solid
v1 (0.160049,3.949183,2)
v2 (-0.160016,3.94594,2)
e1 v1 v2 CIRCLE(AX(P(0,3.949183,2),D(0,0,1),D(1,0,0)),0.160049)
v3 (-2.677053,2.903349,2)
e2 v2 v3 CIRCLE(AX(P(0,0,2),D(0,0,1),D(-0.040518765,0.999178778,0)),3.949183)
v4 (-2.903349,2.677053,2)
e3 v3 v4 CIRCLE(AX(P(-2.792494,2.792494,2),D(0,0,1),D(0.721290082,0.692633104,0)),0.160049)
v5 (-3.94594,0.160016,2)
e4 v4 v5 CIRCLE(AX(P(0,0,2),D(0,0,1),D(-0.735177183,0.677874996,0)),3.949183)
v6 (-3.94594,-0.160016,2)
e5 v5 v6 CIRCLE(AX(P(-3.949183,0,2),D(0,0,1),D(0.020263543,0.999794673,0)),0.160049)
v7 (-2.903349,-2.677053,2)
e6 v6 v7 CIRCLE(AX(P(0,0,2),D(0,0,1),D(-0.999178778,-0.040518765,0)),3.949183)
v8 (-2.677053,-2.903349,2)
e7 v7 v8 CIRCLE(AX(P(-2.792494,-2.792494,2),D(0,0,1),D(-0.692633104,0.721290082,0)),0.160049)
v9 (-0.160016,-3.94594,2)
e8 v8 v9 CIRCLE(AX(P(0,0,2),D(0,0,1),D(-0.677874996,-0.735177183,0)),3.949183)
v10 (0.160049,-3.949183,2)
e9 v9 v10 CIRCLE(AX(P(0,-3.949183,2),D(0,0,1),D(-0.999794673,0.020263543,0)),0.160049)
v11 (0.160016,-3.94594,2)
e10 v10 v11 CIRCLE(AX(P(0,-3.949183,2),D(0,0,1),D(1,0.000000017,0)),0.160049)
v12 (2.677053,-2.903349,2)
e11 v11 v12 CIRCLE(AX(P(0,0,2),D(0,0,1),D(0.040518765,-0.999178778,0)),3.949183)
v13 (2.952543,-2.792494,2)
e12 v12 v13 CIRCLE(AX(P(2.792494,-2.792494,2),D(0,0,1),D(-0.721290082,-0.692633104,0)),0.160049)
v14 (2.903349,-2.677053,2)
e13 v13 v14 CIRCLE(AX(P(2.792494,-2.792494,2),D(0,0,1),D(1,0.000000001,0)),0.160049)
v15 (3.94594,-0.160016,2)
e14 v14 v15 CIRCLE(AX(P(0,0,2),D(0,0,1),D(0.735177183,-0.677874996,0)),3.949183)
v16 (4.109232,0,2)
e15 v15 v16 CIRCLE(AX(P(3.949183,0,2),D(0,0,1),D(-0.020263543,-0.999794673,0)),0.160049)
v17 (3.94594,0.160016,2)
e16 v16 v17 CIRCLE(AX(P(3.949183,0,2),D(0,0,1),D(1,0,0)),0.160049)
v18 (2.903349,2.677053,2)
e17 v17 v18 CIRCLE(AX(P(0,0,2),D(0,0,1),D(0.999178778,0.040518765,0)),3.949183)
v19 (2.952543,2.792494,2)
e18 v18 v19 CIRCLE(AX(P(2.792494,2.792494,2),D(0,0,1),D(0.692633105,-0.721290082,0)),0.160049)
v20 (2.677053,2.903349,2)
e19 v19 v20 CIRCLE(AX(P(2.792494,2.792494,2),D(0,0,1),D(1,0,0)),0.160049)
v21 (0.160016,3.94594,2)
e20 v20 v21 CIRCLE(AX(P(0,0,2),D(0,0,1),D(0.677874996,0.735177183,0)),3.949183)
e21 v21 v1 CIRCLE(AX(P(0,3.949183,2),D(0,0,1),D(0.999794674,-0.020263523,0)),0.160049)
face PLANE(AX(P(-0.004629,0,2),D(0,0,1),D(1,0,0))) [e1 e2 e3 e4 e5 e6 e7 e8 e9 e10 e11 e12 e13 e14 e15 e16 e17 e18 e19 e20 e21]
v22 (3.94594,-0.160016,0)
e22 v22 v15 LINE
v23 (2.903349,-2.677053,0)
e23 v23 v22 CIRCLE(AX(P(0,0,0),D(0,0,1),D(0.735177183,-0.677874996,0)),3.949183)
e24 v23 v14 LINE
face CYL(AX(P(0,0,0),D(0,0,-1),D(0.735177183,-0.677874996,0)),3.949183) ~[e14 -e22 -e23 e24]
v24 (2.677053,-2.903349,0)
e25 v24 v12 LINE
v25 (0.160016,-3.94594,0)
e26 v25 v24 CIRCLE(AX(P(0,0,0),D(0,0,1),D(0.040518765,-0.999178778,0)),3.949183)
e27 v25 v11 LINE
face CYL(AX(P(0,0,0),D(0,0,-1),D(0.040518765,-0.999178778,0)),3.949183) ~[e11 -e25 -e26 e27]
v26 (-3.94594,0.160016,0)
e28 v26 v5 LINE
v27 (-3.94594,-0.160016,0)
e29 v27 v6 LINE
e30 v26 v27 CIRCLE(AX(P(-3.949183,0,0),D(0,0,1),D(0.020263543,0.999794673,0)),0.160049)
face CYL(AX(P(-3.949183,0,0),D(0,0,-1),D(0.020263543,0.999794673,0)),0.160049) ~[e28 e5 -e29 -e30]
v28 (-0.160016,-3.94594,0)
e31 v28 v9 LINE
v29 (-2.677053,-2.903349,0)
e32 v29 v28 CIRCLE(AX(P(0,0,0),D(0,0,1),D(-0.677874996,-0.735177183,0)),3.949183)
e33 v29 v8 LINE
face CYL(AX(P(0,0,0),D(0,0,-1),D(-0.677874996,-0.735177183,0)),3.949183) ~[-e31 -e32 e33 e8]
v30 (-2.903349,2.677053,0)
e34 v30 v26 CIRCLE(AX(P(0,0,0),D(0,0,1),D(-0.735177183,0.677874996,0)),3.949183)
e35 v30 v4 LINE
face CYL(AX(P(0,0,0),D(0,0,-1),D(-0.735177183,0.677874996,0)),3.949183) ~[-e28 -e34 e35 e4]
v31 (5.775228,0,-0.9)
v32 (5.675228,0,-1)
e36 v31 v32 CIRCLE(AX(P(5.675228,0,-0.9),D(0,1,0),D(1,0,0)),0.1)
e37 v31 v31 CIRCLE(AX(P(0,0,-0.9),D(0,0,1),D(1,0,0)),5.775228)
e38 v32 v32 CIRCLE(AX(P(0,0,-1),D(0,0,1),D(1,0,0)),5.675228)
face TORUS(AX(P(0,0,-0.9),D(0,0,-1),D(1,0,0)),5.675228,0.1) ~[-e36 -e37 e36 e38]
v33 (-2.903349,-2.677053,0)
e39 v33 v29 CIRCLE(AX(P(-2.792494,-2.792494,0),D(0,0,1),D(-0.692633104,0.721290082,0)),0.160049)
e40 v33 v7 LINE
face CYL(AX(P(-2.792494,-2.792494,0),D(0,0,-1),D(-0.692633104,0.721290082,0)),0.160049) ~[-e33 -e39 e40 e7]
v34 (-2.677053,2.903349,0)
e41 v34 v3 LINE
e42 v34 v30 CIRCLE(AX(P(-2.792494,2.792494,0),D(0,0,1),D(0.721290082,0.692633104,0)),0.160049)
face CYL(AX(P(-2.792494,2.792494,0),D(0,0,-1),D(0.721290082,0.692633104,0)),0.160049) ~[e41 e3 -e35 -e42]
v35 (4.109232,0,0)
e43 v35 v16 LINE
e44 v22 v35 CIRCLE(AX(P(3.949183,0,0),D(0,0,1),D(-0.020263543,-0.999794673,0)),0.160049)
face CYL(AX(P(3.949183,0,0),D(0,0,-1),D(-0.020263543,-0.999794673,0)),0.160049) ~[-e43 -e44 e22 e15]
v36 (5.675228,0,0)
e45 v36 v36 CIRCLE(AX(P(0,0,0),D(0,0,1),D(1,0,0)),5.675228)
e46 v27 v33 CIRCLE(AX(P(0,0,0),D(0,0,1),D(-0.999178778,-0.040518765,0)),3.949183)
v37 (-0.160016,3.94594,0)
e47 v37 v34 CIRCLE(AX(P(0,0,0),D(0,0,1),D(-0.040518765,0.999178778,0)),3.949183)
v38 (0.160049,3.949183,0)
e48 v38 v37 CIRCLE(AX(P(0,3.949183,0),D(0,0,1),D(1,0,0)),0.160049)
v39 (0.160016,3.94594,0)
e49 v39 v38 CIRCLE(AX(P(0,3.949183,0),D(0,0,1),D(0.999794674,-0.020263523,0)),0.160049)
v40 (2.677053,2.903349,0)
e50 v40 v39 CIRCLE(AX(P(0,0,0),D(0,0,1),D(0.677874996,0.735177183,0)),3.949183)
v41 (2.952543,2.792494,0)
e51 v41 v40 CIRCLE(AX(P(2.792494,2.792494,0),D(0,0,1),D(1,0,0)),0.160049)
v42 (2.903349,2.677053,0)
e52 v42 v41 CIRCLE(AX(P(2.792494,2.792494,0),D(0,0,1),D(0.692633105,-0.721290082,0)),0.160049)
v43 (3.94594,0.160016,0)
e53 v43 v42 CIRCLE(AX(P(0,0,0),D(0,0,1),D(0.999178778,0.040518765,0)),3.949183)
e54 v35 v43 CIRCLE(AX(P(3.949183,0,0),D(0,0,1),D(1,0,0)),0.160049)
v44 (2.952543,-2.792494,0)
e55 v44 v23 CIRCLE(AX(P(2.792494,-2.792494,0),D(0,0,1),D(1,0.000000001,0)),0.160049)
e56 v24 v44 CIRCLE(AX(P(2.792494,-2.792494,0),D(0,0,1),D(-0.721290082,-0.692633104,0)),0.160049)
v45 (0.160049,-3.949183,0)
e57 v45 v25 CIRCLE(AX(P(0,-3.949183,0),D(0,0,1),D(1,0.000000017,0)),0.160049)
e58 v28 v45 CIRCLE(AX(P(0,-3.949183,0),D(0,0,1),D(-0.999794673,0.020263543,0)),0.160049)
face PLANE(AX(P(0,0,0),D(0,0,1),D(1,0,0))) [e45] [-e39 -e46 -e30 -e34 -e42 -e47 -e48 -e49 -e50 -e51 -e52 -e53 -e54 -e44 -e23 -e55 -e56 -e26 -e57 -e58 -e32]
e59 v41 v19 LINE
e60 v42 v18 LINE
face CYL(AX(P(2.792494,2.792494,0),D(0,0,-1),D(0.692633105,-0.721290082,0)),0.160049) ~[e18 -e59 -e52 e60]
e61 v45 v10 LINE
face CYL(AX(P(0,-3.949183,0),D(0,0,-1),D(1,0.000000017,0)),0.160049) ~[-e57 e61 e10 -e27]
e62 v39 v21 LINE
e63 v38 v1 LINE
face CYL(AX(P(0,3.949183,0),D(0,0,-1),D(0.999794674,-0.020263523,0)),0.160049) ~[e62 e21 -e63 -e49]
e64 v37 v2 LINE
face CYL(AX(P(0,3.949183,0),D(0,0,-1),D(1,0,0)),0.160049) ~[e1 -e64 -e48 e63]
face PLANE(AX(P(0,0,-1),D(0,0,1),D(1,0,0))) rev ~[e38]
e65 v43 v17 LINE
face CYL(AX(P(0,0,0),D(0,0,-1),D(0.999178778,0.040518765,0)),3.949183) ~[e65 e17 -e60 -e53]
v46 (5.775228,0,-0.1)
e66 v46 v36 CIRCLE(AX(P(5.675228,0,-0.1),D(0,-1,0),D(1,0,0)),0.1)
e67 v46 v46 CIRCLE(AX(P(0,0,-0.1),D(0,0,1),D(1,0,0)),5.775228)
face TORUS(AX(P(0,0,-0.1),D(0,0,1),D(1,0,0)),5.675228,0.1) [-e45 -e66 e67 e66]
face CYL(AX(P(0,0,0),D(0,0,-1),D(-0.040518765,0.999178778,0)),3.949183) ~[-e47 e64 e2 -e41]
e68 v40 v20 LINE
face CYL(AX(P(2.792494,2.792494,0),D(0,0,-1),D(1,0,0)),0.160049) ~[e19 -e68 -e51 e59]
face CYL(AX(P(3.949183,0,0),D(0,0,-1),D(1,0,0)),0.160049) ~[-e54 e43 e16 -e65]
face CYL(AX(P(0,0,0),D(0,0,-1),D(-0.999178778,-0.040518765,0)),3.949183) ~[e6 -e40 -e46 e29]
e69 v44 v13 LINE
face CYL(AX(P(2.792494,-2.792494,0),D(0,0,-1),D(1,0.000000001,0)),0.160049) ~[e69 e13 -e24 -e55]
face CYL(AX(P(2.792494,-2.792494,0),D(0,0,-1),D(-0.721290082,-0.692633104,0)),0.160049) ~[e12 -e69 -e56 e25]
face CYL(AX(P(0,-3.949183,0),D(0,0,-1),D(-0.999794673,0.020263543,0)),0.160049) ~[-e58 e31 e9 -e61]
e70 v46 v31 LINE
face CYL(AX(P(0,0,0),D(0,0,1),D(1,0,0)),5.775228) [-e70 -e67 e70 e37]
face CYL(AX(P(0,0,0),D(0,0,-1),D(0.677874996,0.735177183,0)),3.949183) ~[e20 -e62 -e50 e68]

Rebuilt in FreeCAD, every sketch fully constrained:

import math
import FreeCAD as App
import Part
import Sketcher

V = App.Vector
Q = App.Units.Quantity


def edges_at(feature, points):
    """Names of the edges that pass closest to the given points."""
    edges = feature.Shape.Edges
    near = lambda p: min(range(len(edges)), key=lambda i: edges[i].distToShape(Part.Vertex(*p))[0])
    return sorted({f"Edge{near(p) + 1}" for p in points})

doc = App.newDocument("Part")
body = doc.addObject("PartDesign::Body", "Body")

# Sketch on XY plane
sketch1 = body.newObject("Sketcher::SketchObject", "Sketch")
sketch1.AttachmentSupport = (doc.getObject("XY_Plane"), [""])
sketch1.MapMode = "FlatFace"
sketch1.addGeometry(Part.Circle(V(0, 0, 0), V(0, 0, 1), 6), False)
sketch1.addConstraint(Sketcher.Constraint("Coincident", 0, 3, -1, 1))
sketch1.addConstraint(Sketcher.Constraint("Diameter", 0, Q("11.550455 mm")))
pad1 = body.newObject("PartDesign::Pad", "Pad")
pad1.Profile = sketch1
pad1.Length = 1
pad1.Reversed = True

# Sketch on XY plane
sketch2 = body.newObject("Sketcher::SketchObject", "Sketch001")
sketch2.AttachmentSupport = (doc.getObject("XY_Plane"), [""])
sketch2.MapMode = "FlatFace"
sketch2.addGeometry(Part.ArcOfCircle(Part.Circle(V(0, 0, 0), V(0, 0, 1), 3.9492), math.radians(2), math.radians(43)), False)
sketch2.addGeometry(Part.ArcOfCircle(Part.Circle(V(2.7925, 2.7925, 0), V(0, 0, 1), 0.16), math.radians(-46), math.radians(0)), False)
sketch2.addGeometry(Part.ArcOfCircle(Part.Circle(V(2.7925, 2.7925, 0), V(0, 0, 1), 0.16), math.radians(0), math.radians(136)), False)
sketch2.addGeometry(Part.ArcOfCircle(Part.Circle(V(0, 0, 0), V(0, 0, 1), 3.9492), math.radians(47), math.radians(88)), False)
sketch2.addGeometry(Part.ArcOfCircle(Part.Circle(V(0, 3.9492, 0), V(0, 0, 1), 0.16), math.radians(-1.16), math.radians(0)), False)
sketch2.addGeometry(Part.ArcOfCircle(Part.Circle(V(0, 3.9492, 0), V(0, 0, 1), 0.16), math.radians(0), math.radians(181)), False)
sketch2.addGeometry(Part.ArcOfCircle(Part.Circle(V(0, 0, 0), V(0, 0, 1), 3.9492), math.radians(92), math.radians(133)), False)
sketch2.addGeometry(Part.ArcOfCircle(Part.Circle(V(-2.7925, 2.7925, 0), V(0, 0, 1), 0.16), math.radians(44), math.radians(226)), False)
sketch2.addGeometry(Part.ArcOfCircle(Part.Circle(V(0, 0, 0), V(0, 0, 1), 3.9492), math.radians(137), math.radians(178)), False)
sketch2.addGeometry(Part.ArcOfCircle(Part.Circle(V(-3.9492, 0, 0), V(0, 0, 1), 0.16), math.radians(89), math.radians(271)), False)
sketch2.addGeometry(Part.ArcOfCircle(Part.Circle(V(0, 0, 0), V(0, 0, 1), 3.9492), math.radians(-178), math.radians(-137)), False)
sketch2.addGeometry(Part.ArcOfCircle(Part.Circle(V(-2.7925, -2.7925, 0), V(0, 0, 1), 0.16), math.radians(134), math.radians(316)), False)
sketch2.addGeometry(Part.ArcOfCircle(Part.Circle(V(0, 0, 0), V(0, 0, 1), 3.9492), math.radians(-133), math.radians(-92)), False)
sketch2.addGeometry(Part.ArcOfCircle(Part.Circle(V(0, -3.9492, 0), V(0, 0, 1), 0.16), math.radians(179), math.radians(360)), False)
sketch2.addGeometry(Part.ArcOfCircle(Part.Circle(V(0, -3.9492, 0), V(0, 0, 1), 0.16), math.radians(0), math.radians(1.16)), False)
sketch2.addGeometry(Part.ArcOfCircle(Part.Circle(V(0, 0, 0), V(0, 0, 1), 3.9492), math.radians(-88), math.radians(-47)), False)
sketch2.addGeometry(Part.ArcOfCircle(Part.Circle(V(2.7925, -2.7925, 0), V(0, 0, 1), 0.16), math.radians(-136), math.radians(0)), False)
sketch2.addGeometry(Part.ArcOfCircle(Part.Circle(V(2.7925, -2.7925, 0), V(0, 0, 1), 0.16), math.radians(0), math.radians(46)), False)
sketch2.addGeometry(Part.ArcOfCircle(Part.Circle(V(0, 0, 0), V(0, 0, 1), 3.9492), math.radians(-43), math.radians(-2)), False)
sketch2.addGeometry(Part.ArcOfCircle(Part.Circle(V(3.9492, 0, 0), V(0, 0, 1), 0.16), math.radians(-91), math.radians(0)), False)
sketch2.addGeometry(Part.ArcOfCircle(Part.Circle(V(3.9492, 0, 0), V(0, 0, 1), 0.16), math.radians(0), math.radians(91)), False)
sketch2.addConstraint(Sketcher.Constraint("Coincident", 0, 2, 1, 1))
sketch2.addConstraint(Sketcher.Constraint("Tangent", 1, 2, 2, 1))
sketch2.addConstraint(Sketcher.Constraint("Coincident", 2, 2, 3, 1))
sketch2.addConstraint(Sketcher.Constraint("Coincident", 3, 2, 4, 1))
sketch2.addConstraint(Sketcher.Constraint("Tangent", 4, 2, 5, 1))
sketch2.addConstraint(Sketcher.Constraint("Coincident", 5, 2, 6, 1))
sketch2.addConstraint(Sketcher.Constraint("Coincident", 6, 2, 7, 1))
sketch2.addConstraint(Sketcher.Constraint("Coincident", 7, 2, 8, 1))
sketch2.addConstraint(Sketcher.Constraint("Coincident", 8, 2, 9, 1))
sketch2.addConstraint(Sketcher.Constraint("Coincident", 9, 2, 10, 1))
sketch2.addConstraint(Sketcher.Constraint("Coincident", 10, 2, 11, 1))
sketch2.addConstraint(Sketcher.Constraint("Coincident", 11, 2, 12, 1))
sketch2.addConstraint(Sketcher.Constraint("Coincident", 12, 2, 13, 1))
sketch2.addConstraint(Sketcher.Constraint("Tangent", 13, 2, 14, 1))
sketch2.addConstraint(Sketcher.Constraint("Coincident", 14, 2, 15, 1))
sketch2.addConstraint(Sketcher.Constraint("Coincident", 15, 2, 16, 1))
sketch2.addConstraint(Sketcher.Constraint("Tangent", 16, 2, 17, 1))
sketch2.addConstraint(Sketcher.Constraint("Coincident", 17, 2, 18, 1))
sketch2.addConstraint(Sketcher.Constraint("Coincident", 18, 2, 19, 1))
sketch2.addConstraint(Sketcher.Constraint("Tangent", 19, 2, 20, 1))
sketch2.addConstraint(Sketcher.Constraint("Coincident", 20, 2, 0, 1))
sketch2.addConstraint(Sketcher.Constraint("Coincident", 0, 3, -1, 1))
sketch2.addConstraint(Sketcher.Constraint("Coincident", 3, 3, -1, 1))
sketch2.addConstraint(Sketcher.Constraint("Coincident", 6, 3, -1, 1))
sketch2.addConstraint(Sketcher.Constraint("Coincident", 8, 3, -1, 1))
sketch2.addConstraint(Sketcher.Constraint("Coincident", 10, 3, -1, 1))
sketch2.addConstraint(Sketcher.Constraint("Coincident", 12, 3, -1, 1))
sketch2.addConstraint(Sketcher.Constraint("Coincident", 15, 3, -1, 1))
sketch2.addConstraint(Sketcher.Constraint("Coincident", 18, 3, -1, 1))
sketch2.addConstraint(Sketcher.Constraint("Equal", 1, 2))
sketch2.addConstraint(Sketcher.Constraint("Equal", 0, 3))
sketch2.addConstraint(Sketcher.Constraint("Equal", 2, 4))
sketch2.addConstraint(Sketcher.Constraint("Equal", 4, 5))
sketch2.addConstraint(Sketcher.Constraint("Equal", 3, 6))
sketch2.addConstraint(Sketcher.Constraint("Equal", 5, 7))
sketch2.addConstraint(Sketcher.Constraint("Equal", 6, 8))
sketch2.addConstraint(Sketcher.Constraint("Equal", 7, 9))
sketch2.addConstraint(Sketcher.Constraint("Equal", 8, 10))
sketch2.addConstraint(Sketcher.Constraint("Equal", 9, 11))
sketch2.addConstraint(Sketcher.Constraint("Equal", 10, 12))
sketch2.addConstraint(Sketcher.Constraint("Equal", 11, 13))
sketch2.addConstraint(Sketcher.Constraint("Equal", 13, 14))
sketch2.addConstraint(Sketcher.Constraint("Equal", 12, 15))
sketch2.addConstraint(Sketcher.Constraint("Equal", 14, 16))
sketch2.addConstraint(Sketcher.Constraint("Equal", 16, 17))
sketch2.addConstraint(Sketcher.Constraint("Equal", 15, 18))
sketch2.addConstraint(Sketcher.Constraint("Equal", 17, 19))
sketch2.addConstraint(Sketcher.Constraint("Equal", 19, 20))
sketch2.addConstraint(Sketcher.Constraint("Symmetric", 1, 3, 11, 3, -1, 1))
sketch2.addConstraint(Sketcher.Constraint("Symmetric", 4, 3, 13, 3, -1, 1))
sketch2.addConstraint(Sketcher.Constraint("Symmetric", 7, 3, 16, 3, -1, 1))
sketch2.addConstraint(Sketcher.Constraint("Symmetric", 9, 3, 19, 3, -1, 1))
sketch2.addConstraint(Sketcher.Constraint("Symmetric", 1, 3, 7, 3, -2))
sketch2.addConstraint(Sketcher.Constraint("Symmetric", 4, 2, 13, 2, -1))
sketch2.addConstraint(Sketcher.Constraint("PointOnObject", 9, 3, -1))
sketch2.addConstraint(Sketcher.Constraint("PointOnObject", 19, 2, -1))
sketch2.addConstraint(Sketcher.Constraint("Horizontal", 7, 3, 1, 2))
sketch2.addConstraint(Sketcher.Constraint("Horizontal", 5, 3, 4, 2))
sketch2.addConstraint(Sketcher.Constraint("Horizontal", 17, 3, 16, 2))
sketch2.addConstraint(Sketcher.Constraint("Radius", 1, Q("0.160049 mm")))
sketch2.addConstraint(Sketcher.Constraint("Radius", 0, Q("3.949183 mm")))
sketch2.addConstraint(Sketcher.Constraint("DistanceX", -1, 1, 0, 2, Q("2.903349 mm")))
sketch2.addConstraint(Sketcher.Constraint("DistanceY", 1, 3, 4, 3, Q("1.156689 mm")))
sketch2.addConstraint(Sketcher.Constraint("DistanceX", 9, 3, 7, 3, Q("1.156689 mm")))
sketch2.addConstraint(Sketcher.Constraint("DistanceY", 0, 2, 1, 3, Q("0.115442 mm")))
pad2 = body.newObject("PartDesign::Pad", "Pad001")
pad2.Profile = sketch2
pad2.Length = 2
doc.recompute()

fillet = body.newObject("PartDesign::Fillet", "Fillet")
fillet.Base = (pad2, edges_at(pad2, [(-5.775, 0, -1), (-5.775, 0, 0)]))
fillet.Radius = 0.1

doc.recompute()
